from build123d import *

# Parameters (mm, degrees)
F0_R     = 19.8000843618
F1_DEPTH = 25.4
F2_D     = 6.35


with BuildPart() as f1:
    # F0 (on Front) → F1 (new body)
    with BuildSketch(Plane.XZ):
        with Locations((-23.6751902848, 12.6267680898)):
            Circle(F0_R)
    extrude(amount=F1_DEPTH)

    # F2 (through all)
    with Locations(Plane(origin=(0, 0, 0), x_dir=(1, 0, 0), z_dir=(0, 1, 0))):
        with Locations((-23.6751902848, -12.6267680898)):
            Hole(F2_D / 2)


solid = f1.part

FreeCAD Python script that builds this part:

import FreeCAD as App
import Part
import Sketcher

V = App.Vector
Q = App.Units.Quantity

doc = App.newDocument("Part")
body = doc.addObject("PartDesign::Body", "Body")

sketch1 = doc.addObject("Sketcher::SketchObject", "Sketch")
body.addObject(sketch1)
sketch1.AttachmentSupport = (doc.XZ_Plane, [""])
sketch1.MapMode = "FlatFace"
sketch1.addGeometry(Part.Circle(V(-24, 13, 0), V(0, 0, 1), 20), False)
sketch1.addConstraint([
    Sketcher.Constraint("Diameter", 0, 39.600169),
    Sketcher.Constraint("DistanceX", 0, 3, -1, 1, 23.67519),
    Sketcher.Constraint("DistanceY", -1, 1, 0, 3, 12.626768),
])
pad1 = doc.addObject("PartDesign::Pad", "Pad")
body.addObject(pad1)
pad1.Profile = sketch1
pad1.Length = Q("1 in")

sketch2 = doc.addObject("Sketcher::SketchObject", "Sketch001")
body.addObject(sketch2)
sketch2.AttachmentSupport = (doc.XZ_Plane, [""])
sketch2.MapMode = "FlatFace"
sketch2.addGeometry(Part.Circle(V(-23.7, 12.6, 0), V(0, 0, 1), 3.2), False)
sketch2.addConstraint([
    Sketcher.Constraint("Diameter", 0, Q("0.25 in")),
    Sketcher.Constraint("DistanceX", 0, 3, -1, 1, 23.67519),
    Sketcher.Constraint("DistanceY", -1, 1, 0, 3, 12.626768),
])
doc.recompute()
hole = doc.addObject("PartDesign::Hole", "Hole")
body.addObject(hole)
hole.Profile = sketch2
hole.ThreadType = "None"
hole.Diameter = Q("0.25 in")
hole.DepthType = "ThroughAll"
hole.Reversed = True

doc.recompute()
